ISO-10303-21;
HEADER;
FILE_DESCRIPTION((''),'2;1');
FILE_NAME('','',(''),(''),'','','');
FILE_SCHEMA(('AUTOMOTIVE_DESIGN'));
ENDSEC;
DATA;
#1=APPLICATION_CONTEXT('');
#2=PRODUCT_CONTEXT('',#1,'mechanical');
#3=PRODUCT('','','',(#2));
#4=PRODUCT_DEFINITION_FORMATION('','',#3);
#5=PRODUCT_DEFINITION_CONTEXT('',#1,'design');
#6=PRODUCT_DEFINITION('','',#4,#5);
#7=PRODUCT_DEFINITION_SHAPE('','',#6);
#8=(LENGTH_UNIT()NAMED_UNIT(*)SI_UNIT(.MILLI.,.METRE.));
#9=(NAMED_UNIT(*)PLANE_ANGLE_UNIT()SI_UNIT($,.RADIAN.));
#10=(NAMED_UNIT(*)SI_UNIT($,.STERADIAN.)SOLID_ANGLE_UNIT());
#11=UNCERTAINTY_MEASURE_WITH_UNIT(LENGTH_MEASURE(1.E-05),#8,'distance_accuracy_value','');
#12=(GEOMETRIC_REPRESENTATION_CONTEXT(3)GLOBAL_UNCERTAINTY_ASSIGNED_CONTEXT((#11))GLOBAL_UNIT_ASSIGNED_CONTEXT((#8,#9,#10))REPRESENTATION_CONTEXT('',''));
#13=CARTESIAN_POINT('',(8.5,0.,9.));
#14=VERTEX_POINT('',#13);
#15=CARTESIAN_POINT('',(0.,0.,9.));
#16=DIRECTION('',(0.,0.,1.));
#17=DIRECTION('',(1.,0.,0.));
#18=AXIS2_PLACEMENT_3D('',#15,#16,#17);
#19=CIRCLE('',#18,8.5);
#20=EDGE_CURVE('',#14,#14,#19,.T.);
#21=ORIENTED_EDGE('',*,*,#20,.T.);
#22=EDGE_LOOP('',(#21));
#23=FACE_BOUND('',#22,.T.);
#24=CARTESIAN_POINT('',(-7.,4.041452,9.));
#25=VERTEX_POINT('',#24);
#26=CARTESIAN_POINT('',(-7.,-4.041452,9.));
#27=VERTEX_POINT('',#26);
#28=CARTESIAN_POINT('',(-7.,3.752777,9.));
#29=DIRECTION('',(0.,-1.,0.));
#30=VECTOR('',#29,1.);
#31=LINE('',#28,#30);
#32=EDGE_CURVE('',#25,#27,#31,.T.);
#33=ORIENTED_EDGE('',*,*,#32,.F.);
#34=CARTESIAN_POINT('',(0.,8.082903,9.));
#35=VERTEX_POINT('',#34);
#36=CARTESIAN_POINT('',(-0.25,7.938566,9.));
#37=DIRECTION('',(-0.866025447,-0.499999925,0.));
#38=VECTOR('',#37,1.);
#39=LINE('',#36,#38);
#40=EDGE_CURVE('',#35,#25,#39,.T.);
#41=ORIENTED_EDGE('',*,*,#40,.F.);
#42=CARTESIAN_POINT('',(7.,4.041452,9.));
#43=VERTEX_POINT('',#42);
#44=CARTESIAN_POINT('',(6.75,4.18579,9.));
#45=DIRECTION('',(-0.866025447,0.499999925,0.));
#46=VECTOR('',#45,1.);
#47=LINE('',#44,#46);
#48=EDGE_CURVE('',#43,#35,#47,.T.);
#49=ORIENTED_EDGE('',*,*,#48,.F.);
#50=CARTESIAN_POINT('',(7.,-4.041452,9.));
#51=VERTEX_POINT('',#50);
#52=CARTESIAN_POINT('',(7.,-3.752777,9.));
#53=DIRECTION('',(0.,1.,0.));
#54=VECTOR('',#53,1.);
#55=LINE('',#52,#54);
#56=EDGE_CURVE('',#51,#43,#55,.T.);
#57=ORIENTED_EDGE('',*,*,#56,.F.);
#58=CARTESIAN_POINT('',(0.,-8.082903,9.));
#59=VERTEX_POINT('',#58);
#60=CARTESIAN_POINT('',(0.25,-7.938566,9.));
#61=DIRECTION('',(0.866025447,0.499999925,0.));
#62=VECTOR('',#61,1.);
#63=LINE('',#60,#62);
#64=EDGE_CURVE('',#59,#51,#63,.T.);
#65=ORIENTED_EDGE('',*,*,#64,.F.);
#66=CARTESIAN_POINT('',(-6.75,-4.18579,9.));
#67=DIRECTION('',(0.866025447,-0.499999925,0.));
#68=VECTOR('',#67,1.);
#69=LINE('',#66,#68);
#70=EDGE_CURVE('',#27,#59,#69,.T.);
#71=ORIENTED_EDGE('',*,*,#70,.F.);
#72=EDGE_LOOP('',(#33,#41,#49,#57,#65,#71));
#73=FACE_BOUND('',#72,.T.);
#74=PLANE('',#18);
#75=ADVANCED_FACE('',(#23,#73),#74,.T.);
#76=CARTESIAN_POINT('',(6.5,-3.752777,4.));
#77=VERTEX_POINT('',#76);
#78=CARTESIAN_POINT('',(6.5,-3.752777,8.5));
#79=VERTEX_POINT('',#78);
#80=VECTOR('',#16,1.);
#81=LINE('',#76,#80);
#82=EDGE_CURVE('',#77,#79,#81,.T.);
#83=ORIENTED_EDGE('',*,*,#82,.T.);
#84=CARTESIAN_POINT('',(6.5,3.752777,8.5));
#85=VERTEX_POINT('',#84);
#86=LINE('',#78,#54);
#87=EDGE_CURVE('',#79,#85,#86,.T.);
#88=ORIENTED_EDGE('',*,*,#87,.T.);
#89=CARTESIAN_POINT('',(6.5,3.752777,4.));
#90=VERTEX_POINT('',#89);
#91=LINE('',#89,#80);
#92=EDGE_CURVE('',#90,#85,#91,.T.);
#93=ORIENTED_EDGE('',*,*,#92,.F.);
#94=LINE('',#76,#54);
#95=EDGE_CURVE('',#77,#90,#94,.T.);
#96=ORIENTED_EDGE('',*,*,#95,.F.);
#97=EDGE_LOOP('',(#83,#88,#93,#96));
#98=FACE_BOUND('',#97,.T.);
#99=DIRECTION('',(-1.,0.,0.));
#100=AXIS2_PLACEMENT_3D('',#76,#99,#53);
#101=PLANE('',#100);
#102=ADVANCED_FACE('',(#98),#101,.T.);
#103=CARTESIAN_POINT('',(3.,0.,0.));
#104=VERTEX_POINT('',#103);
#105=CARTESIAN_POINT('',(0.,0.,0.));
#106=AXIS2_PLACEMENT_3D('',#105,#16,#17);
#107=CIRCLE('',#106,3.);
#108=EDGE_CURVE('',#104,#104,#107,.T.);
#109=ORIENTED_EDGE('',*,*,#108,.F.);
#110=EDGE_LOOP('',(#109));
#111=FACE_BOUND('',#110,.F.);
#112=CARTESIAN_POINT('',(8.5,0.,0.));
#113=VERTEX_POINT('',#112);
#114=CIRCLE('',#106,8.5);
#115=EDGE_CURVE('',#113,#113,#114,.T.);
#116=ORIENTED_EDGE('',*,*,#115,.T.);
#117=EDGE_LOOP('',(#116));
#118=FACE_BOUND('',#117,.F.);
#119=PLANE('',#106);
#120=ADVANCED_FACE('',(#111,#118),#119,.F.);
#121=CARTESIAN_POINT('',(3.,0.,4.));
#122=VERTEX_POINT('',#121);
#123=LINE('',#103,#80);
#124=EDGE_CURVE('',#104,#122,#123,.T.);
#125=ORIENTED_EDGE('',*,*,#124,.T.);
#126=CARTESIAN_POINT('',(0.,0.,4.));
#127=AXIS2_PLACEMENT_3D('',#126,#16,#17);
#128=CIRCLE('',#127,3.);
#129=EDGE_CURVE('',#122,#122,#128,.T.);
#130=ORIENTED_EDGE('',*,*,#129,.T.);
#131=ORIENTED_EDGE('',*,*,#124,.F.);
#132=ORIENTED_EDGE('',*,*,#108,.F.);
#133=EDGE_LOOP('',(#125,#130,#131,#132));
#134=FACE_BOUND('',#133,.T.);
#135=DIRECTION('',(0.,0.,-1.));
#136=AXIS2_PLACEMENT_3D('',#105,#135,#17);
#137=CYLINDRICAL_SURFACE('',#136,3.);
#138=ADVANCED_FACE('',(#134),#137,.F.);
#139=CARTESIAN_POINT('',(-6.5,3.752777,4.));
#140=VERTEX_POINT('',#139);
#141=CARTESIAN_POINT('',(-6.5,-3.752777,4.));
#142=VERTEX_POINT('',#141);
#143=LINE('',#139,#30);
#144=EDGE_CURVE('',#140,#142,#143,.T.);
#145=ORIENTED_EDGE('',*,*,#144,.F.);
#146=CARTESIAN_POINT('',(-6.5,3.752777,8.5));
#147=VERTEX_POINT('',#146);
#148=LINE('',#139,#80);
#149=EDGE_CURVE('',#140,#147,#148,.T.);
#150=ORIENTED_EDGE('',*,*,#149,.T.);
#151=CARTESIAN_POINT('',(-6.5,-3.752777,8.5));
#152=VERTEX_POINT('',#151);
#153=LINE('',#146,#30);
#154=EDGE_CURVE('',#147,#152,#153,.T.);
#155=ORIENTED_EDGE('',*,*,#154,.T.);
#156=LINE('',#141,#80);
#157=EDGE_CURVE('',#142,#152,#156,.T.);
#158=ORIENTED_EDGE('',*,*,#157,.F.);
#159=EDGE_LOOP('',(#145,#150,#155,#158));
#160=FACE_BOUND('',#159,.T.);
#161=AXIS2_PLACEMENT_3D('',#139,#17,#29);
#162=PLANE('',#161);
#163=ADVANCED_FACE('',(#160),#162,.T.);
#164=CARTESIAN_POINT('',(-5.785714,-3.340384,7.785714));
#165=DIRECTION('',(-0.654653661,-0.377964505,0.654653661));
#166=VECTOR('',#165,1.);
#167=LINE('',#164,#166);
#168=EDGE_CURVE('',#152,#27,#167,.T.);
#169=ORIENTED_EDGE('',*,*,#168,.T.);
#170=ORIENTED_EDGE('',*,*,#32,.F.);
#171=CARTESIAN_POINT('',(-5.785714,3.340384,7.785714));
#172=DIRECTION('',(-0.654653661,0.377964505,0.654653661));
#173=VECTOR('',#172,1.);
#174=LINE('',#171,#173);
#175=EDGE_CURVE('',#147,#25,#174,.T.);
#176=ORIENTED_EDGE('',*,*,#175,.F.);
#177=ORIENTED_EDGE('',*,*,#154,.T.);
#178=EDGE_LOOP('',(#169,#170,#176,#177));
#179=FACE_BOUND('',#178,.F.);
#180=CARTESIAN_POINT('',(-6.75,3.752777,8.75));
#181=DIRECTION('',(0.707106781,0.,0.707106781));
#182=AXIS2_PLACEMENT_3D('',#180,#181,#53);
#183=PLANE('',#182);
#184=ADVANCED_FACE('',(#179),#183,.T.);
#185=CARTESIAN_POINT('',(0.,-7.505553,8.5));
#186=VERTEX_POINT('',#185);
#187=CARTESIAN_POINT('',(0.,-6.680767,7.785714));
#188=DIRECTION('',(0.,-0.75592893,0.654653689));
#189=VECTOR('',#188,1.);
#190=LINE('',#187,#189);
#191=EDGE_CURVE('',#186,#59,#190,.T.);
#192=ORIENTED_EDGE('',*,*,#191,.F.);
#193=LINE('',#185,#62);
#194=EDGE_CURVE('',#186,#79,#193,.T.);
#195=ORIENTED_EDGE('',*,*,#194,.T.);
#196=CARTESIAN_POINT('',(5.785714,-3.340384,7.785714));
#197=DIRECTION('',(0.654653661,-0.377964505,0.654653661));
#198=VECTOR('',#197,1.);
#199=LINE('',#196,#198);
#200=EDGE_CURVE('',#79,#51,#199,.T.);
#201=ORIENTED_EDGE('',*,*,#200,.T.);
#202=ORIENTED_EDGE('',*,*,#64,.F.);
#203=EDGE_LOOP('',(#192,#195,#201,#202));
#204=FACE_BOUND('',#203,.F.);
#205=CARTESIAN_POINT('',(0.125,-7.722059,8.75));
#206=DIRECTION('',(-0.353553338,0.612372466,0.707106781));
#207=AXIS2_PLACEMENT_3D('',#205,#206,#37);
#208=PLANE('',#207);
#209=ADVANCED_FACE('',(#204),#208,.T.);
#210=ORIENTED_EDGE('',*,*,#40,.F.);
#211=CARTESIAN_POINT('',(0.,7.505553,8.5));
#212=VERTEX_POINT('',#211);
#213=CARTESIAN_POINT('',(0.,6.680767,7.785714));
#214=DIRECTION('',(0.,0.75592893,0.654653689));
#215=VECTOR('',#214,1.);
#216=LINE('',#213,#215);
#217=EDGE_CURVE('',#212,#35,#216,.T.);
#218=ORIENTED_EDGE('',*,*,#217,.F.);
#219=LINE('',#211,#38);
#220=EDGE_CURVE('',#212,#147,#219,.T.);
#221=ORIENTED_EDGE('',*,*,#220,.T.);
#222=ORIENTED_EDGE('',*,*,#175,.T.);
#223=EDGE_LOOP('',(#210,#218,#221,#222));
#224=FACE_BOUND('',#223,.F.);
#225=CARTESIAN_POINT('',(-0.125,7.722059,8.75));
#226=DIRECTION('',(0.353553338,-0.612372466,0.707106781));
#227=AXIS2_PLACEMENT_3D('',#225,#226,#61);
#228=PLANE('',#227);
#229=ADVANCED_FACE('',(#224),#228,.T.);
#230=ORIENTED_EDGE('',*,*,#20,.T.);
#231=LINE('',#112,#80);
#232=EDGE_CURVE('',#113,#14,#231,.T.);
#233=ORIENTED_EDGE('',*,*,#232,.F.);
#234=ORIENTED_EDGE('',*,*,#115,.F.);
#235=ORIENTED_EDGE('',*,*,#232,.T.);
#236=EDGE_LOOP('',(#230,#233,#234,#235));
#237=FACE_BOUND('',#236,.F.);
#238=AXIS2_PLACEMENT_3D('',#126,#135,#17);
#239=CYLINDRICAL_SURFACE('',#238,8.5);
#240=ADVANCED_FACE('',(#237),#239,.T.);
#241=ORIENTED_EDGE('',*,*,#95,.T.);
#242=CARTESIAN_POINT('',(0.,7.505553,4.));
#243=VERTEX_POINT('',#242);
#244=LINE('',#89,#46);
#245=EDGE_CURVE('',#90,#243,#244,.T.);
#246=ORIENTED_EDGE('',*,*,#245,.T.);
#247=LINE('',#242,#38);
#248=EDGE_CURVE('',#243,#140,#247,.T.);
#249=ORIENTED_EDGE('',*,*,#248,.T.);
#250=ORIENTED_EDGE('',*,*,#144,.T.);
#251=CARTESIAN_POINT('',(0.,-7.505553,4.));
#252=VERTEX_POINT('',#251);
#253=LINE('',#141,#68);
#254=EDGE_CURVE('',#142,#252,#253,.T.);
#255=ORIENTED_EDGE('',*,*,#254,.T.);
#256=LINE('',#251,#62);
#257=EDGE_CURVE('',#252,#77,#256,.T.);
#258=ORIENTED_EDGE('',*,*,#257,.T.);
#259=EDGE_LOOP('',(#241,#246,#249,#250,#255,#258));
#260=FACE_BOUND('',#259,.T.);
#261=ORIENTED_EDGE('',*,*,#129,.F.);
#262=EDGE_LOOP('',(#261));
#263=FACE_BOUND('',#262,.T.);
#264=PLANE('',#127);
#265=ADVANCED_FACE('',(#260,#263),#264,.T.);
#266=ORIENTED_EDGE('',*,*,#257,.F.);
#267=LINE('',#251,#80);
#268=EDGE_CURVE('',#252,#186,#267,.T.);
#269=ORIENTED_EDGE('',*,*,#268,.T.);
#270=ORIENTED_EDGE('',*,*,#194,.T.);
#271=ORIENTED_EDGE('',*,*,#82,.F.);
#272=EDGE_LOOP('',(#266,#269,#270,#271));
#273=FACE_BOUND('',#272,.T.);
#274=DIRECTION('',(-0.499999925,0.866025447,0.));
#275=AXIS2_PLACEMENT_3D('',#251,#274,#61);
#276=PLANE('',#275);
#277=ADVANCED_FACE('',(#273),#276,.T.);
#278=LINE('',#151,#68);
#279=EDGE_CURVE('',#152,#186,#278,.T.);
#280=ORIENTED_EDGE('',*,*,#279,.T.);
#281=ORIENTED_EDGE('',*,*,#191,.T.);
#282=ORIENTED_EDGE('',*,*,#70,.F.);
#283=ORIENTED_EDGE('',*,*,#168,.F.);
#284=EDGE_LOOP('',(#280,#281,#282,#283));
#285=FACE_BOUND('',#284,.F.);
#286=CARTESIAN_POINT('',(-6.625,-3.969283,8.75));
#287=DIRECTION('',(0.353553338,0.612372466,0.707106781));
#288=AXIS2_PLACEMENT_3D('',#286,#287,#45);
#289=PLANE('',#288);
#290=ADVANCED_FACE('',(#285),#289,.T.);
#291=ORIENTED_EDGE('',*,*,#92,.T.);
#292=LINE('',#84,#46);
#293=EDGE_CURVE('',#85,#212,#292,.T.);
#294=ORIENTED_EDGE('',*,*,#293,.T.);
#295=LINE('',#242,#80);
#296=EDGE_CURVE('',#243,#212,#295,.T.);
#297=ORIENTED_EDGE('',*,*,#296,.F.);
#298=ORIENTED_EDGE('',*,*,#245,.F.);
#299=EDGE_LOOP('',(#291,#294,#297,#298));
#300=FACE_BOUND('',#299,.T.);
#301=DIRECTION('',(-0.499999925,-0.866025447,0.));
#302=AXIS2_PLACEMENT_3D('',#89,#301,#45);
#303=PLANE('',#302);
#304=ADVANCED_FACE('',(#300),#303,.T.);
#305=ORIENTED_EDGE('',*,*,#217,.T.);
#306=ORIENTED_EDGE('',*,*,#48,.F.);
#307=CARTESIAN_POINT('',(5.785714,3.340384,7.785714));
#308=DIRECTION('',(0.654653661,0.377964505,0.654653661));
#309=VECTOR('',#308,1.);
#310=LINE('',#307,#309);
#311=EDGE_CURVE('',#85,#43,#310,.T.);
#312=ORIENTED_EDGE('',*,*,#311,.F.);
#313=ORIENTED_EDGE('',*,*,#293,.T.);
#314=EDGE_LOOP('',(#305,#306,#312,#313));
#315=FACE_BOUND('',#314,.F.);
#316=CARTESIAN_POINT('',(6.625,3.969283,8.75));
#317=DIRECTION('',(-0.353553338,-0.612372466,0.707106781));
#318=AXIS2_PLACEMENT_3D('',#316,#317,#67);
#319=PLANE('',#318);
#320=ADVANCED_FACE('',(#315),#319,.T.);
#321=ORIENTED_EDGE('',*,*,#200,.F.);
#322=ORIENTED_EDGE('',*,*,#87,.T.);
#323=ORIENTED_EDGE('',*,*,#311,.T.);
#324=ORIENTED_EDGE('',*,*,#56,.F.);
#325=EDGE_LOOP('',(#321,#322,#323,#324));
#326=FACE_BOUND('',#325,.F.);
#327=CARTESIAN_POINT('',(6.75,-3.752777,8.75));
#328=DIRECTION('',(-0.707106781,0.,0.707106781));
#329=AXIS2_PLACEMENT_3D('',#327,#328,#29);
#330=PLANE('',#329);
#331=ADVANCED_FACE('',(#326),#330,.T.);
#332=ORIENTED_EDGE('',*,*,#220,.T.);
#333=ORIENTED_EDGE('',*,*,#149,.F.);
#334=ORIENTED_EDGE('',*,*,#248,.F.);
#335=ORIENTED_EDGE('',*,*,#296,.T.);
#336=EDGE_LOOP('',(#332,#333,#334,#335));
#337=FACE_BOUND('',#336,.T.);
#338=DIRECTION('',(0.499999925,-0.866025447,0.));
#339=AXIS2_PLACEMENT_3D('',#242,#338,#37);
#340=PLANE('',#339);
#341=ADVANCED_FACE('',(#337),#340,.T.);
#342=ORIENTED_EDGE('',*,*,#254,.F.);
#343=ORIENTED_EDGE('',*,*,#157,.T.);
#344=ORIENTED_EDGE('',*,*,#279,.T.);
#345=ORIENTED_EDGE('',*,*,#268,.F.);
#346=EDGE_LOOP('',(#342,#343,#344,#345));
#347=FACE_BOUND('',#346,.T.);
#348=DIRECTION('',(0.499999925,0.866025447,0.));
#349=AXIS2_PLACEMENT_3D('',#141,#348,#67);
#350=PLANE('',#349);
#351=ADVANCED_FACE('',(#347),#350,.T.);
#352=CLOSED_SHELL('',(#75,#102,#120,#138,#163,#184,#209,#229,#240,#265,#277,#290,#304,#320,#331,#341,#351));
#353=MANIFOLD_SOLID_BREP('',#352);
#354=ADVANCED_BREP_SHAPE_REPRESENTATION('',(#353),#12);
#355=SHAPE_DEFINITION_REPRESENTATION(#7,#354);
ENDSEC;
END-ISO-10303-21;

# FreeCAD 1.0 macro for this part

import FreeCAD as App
import Part
import Sketcher
Q = App.Units.Quantity


def edges_at(feature, points):
    """Names of the edges that pass closest to the given points."""
    edges = feature.Shape.Edges
    near = lambda p: min(range(len(edges)), key=lambda i: edges[i].distToShape(Part.Vertex(*p))[0])
    return sorted({f"Edge{near(p) + 1}" for p in points})

doc = App.newDocument("Part")
body = doc.addObject("PartDesign::Body", "Body")

# Sketch on XY plane
sketch1 = body.newObject("Sketcher::SketchObject", "Sketch")
sketch1.AttachmentSupport = (doc.getObject("XY_Plane"), [""])
sketch1.MapMode = "FlatFace"
sketch1.addGeometry([
    Part.Circle(App.Vector(0, 0, 0), App.Vector(0, 0, 1), 8.5),
    Part.Circle(App.Vector(0, 0, 0), App.Vector(0, 0, 1), 3),
], False)
sketch1.addConstraint([
    Sketcher.Constraint("Coincident", 0, 3, -1, 1),
    Sketcher.Constraint("Coincident", 1, 3, -1, 1),
    Sketcher.Constraint("Diameter", 0, 17.0),
    Sketcher.Constraint("Diameter", 1, 6.0),
])
pad1 = body.newObject("PartDesign::Pad", "Pad")
pad1.Profile = sketch1
pad1.Length = 4

# Sketch on XY plane
sketch2 = body.newObject("Sketcher::SketchObject", "Sketch001")
sketch2.AttachmentSupport = (doc.getObject("XY_Plane"), [""])
sketch2.MapMode = "FlatFace"
sketch2.AttachmentOffset = App.Placement(App.Vector(0, 0, 4), App.Rotation())
sketch2.addGeometry([
    Part.Circle(App.Vector(0, 0, 0), App.Vector(0, 0, 1), 8),  # 0
    Part.LineSegment(App.Vector(6, 4, 0), App.Vector(6, -4, 0)),  # 1
    Part.LineSegment(App.Vector(6, -4, 0), App.Vector(0, -8, 0)),  # 2
    Part.LineSegment(App.Vector(0, -8, 0), App.Vector(-6, -4, 0)),  # 3
    Part.LineSegment(App.Vector(-6, -4, 0), App.Vector(-6, 4, 0)),  # 4
    Part.LineSegment(App.Vector(-6, 4, 0), App.Vector(0, 8, 0)),  # 5
    Part.LineSegment(App.Vector(0, 8, 0), App.Vector(6, 4, 0)),  # 6
], False)
sketch2.addConstraint([
    Sketcher.Constraint("Coincident", 1, 2, 2, 1),
    Sketcher.Constraint("Coincident", 2, 2, 3, 1),
    Sketcher.Constraint("Coincident", 3, 2, 4, 1),
    Sketcher.Constraint("Coincident", 4, 2, 5, 1),
    Sketcher.Constraint("Coincident", 5, 2, 6, 1),
    Sketcher.Constraint("Coincident", 6, 2, 1, 1),
    Sketcher.Constraint("Vertical", 1),
    Sketcher.Constraint("Vertical", 4),
    Sketcher.Constraint("Coincident", 0, 3, -1, 1),
    Sketcher.Constraint("Symmetric", 1, 2, 4, 2, -1, 1),
    Sketcher.Constraint("Symmetric", 2, 2, 5, 2, -1, 1),
    Sketcher.Constraint("PointOnObject", 2, 2, -2),
    Sketcher.Constraint("Parallel", 3, 6),
    Sketcher.Constraint("Horizontal", 1, 2, 3, 2),
    Sketcher.Constraint("Diameter", 0, 17.0),
    Sketcher.Constraint("Angle", 2, Q("-150.000005 deg")),
    Sketcher.Constraint("DistanceX", 3, 2, 1, 2, 13.0),
    Sketcher.Constraint("DistanceY", 1, 2, 1, 1, 7.505554),
])
pad2 = body.newObject("PartDesign::Pad", "Pad001")
pad2.Profile = sketch2
pad2.Length = 5
doc.recompute()

chamfer = body.newObject("PartDesign::Chamfer", "Chamfer")
chamfer.Base = (pad2, edges_at(pad2, [
    (-3.25, 5.629, 9),
    (3.25, 5.629, 9),
    (6.5, 0, 9),
    (3.25, -5.629, 9),
    (-3.25, -5.629, 9),
    (-6.5, 0, 9),
]))
chamfer.Size = 0.5

doc.recompute()
